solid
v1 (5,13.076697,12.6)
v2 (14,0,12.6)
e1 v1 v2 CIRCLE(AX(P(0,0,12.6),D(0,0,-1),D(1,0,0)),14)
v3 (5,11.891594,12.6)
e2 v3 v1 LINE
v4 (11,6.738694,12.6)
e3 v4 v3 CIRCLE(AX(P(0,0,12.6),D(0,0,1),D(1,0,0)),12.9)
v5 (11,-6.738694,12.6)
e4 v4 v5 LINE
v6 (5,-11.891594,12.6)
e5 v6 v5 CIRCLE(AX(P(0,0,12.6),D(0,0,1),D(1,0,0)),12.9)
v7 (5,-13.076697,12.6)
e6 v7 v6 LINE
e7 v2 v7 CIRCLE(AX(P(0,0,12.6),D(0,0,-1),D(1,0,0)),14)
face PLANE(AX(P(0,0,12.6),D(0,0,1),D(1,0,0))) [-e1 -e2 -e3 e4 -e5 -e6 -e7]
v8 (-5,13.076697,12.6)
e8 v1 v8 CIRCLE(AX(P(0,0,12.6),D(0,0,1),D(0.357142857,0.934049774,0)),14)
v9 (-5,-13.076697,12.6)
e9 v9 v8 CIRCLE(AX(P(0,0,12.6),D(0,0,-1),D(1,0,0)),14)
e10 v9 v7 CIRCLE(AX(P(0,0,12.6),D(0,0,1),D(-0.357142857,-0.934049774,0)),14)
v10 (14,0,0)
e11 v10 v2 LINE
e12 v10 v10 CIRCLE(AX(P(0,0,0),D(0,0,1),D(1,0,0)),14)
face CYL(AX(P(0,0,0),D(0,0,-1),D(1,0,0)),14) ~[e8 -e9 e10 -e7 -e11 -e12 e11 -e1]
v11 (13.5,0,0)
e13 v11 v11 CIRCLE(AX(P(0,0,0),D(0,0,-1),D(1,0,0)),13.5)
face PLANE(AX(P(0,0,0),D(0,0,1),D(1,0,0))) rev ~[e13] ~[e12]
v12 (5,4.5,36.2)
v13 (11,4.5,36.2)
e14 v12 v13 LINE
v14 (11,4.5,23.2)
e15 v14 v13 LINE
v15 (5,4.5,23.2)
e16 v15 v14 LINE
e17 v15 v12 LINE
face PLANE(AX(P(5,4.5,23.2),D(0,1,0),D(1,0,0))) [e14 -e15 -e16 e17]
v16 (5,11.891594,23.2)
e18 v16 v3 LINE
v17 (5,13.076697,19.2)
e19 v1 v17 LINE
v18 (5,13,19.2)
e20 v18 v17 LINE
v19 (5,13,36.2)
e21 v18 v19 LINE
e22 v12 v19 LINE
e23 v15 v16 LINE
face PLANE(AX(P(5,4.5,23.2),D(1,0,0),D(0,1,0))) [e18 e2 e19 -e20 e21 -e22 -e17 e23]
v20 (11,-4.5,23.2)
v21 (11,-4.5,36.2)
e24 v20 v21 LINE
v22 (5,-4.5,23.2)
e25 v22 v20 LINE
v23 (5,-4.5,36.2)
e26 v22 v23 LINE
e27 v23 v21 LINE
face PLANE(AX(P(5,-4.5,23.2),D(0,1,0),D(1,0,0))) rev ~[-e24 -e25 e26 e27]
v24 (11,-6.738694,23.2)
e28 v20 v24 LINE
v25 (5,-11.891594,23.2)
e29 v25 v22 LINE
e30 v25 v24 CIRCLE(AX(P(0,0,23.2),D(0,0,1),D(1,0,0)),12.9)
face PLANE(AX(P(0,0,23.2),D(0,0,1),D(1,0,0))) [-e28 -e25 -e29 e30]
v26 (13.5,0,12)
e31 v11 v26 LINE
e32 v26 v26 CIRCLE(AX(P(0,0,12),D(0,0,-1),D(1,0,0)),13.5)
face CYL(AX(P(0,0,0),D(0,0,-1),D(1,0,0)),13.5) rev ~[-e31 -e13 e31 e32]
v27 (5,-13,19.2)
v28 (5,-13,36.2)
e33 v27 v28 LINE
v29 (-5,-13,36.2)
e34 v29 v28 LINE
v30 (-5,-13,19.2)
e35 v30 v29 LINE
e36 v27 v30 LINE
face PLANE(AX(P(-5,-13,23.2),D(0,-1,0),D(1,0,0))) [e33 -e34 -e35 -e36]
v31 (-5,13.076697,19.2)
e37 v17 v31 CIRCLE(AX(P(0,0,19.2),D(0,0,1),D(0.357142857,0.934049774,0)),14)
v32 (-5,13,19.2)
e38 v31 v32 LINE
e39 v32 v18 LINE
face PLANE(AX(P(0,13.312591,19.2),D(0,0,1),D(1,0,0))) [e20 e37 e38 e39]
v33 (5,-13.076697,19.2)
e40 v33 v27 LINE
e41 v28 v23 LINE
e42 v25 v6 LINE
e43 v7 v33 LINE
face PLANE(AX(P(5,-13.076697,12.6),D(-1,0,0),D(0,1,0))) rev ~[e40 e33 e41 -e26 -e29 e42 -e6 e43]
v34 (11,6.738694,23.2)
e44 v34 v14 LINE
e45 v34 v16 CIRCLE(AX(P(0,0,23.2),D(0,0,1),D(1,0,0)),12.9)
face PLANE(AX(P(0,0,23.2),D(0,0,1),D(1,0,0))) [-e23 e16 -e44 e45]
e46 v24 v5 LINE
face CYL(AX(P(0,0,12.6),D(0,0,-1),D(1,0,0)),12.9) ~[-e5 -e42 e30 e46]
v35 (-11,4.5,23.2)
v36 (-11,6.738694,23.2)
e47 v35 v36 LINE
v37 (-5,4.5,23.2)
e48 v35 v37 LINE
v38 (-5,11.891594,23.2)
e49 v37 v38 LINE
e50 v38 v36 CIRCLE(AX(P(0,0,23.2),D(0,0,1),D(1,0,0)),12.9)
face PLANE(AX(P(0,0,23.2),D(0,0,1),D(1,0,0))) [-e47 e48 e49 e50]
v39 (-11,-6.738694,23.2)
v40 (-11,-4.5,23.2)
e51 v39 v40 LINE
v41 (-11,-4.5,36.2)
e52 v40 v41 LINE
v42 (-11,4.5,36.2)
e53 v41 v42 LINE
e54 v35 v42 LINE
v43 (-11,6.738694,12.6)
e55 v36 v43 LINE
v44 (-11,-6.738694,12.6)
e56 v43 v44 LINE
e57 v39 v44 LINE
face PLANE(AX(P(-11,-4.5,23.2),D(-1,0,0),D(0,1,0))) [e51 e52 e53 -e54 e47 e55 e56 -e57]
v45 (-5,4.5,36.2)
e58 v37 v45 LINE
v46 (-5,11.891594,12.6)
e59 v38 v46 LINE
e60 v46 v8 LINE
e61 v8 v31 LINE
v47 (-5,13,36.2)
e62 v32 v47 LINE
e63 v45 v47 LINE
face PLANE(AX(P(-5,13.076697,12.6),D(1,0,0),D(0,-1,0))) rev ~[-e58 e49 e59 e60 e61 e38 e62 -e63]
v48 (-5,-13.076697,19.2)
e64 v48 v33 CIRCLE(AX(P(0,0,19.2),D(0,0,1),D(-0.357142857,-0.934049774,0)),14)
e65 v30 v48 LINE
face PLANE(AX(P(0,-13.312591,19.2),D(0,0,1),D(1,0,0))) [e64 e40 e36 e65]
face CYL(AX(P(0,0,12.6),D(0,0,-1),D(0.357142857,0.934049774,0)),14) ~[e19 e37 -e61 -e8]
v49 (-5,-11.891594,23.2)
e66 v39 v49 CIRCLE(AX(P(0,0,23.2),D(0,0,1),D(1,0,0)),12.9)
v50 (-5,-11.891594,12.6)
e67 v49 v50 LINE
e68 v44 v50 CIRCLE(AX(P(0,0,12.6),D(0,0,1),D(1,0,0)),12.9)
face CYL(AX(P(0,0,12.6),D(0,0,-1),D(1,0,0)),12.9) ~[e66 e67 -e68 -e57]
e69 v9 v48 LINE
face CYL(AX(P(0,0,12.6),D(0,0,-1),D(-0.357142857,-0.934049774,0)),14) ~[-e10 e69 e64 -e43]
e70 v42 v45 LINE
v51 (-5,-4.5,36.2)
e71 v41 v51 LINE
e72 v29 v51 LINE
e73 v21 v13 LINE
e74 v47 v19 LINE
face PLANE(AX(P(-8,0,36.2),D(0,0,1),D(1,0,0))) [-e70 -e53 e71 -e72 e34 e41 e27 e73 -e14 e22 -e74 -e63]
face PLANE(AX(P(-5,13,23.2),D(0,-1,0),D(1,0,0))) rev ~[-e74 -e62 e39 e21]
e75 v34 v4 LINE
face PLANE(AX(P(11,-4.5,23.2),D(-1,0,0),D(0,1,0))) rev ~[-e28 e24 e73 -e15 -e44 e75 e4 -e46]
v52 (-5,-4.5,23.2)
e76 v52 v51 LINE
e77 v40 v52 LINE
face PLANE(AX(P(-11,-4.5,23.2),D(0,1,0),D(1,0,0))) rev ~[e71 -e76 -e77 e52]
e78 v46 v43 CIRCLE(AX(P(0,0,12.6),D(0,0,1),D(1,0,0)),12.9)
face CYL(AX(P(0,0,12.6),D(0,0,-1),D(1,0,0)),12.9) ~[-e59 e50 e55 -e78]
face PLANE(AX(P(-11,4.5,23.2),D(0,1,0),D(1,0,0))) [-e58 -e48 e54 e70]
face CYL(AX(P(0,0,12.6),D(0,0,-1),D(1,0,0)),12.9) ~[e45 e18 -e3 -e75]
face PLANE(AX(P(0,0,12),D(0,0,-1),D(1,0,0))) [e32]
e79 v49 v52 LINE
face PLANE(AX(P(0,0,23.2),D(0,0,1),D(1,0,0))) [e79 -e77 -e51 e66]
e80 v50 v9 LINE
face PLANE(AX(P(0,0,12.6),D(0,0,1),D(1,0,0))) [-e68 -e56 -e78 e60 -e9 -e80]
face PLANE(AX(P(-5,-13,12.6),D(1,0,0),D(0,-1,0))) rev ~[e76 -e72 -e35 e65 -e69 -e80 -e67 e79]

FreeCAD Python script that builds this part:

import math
import FreeCAD as App
import Part
import Sketcher

V = App.Vector


def add_polygon(sketch, points):
    """Adds a closed chain of lines whose ends are joined by coincident constraints."""
    first, n = sketch.GeometryCount, len(points)
    for a, b in zip(points, points[1:] + points[:1]):
        sketch.addGeometry(Part.LineSegment(App.Vector(*a, 0), App.Vector(*b, 0)), False)
    for i in range(n):
        sketch.addConstraint(Sketcher.Constraint("Coincident", first + i, 2, first + (i + 1) % n, 1))

doc = App.newDocument("Part")
body = doc.addObject("PartDesign::Body", "Body")

sketch1 = body.newObject("Sketcher::SketchObject", "Sketch")
sketch1.AttachmentSupport = (doc.getObject("XY_Plane"), [""])
sketch1.MapMode = "FlatFace"
sketch1.addGeometry(Part.Circle(V(0, 0, 0), V(0, 0, 1), 14), False)
sketch1.addConstraint(Sketcher.Constraint("Coincident", 0, 3, -1, 1))
sketch1.addConstraint(Sketcher.Constraint("Diameter", 0, 28.0))
pad1 = body.newObject("PartDesign::Pad", "Pad")
pad1.Profile = sketch1
pad1.Length = 12.6

sketch2 = body.newObject("Sketcher::SketchObject", "Sketch001")
sketch2.AttachmentSupport = (doc.getObject("XY_Plane"), [""])
sketch2.MapMode = "FlatFace"
sketch2.AttachmentOffset = App.Placement(V(0, 0, 12.6), App.Rotation())
sketch2.addGeometry(Part.Circle(V(0, 0, 0), V(0, 0, 1), 13), False)
sketch2.addConstraint(Sketcher.Constraint("Coincident", 0, 3, -1, 1))
sketch2.addConstraint(Sketcher.Constraint("Diameter", 0, 25.8))
pad2 = body.newObject("PartDesign::Pad", "Pad001")
pad2.Profile = sketch2
pad2.Length = 10.6

sketch3 = body.newObject("Sketcher::SketchObject", "Sketch002")
sketch3.AttachmentSupport = (doc.getObject("XY_Plane"), [""])
sketch3.MapMode = "FlatFace"
sketch3.AttachmentOffset = App.Placement(V(0, 0, 23.2), App.Rotation())
add_polygon(sketch3, [(19, 15), (11, 15), (11, -15), (19, -15)])
add_polygon(sketch3, [(-11, 14), (-21, 14), (-21, -14), (-11, -14)])
sketch3.addConstraint(Sketcher.Constraint("Horizontal", 0))
sketch3.addConstraint(Sketcher.Constraint("Vertical", 1))
sketch3.addConstraint(Sketcher.Constraint("Horizontal", 2))
sketch3.addConstraint(Sketcher.Constraint("Vertical", 3))
sketch3.addConstraint(Sketcher.Constraint("Horizontal", 4))
sketch3.addConstraint(Sketcher.Constraint("Vertical", 5))
sketch3.addConstraint(Sketcher.Constraint("Horizontal", 6))
sketch3.addConstraint(Sketcher.Constraint("Vertical", 7))
sketch3.addConstraint(Sketcher.Constraint("DistanceX", -1, 1, 0, 2, 11.0))
sketch3.addConstraint(Sketcher.Constraint("DistanceX", 6, 2, -1, 1, 11.0))
sketch3.addConstraint(Sketcher.Constraint("DistanceY", 5, 2, 5, 1, 27.82446))
sketch3.addConstraint(Sketcher.Constraint("DistanceX", 0, 2, 0, 1, 8.012233))
sketch3.addConstraint(Sketcher.Constraint("DistanceX", 4, 2, 4, 1, 9.838056))
sketch3.addConstraint(Sketcher.Constraint("DistanceY", 1, 2, 1, 1, 30.346222))
sketch3.addConstraint(Sketcher.Constraint("DistanceY", -1, 1, 0, 2, 15.173111))
sketch3.addConstraint(Sketcher.Constraint("DistanceY", -1, 1, 4, 2, 13.91223))
pocket1 = body.newObject("PartDesign::Pocket", "Pocket")
pocket1.Profile = sketch3
pocket1.Length = 10.6

sketch4 = body.newObject("Sketcher::SketchObject", "Sketch003")
sketch4.AttachmentSupport = (doc.getObject("XY_Plane"), [""])
sketch4.MapMode = "FlatFace"
sketch4.AttachmentOffset = App.Placement(V(0, 0, 23.2), App.Rotation())
add_polygon(sketch4, [(-11, 4), (-11, -4), (-5, -4), (-5, -13), (5, -13), (5, -4), (11, -4), (11, 4), (5, 4), (5, 13), (-5, 13), (-5, 4)])
sketch4.addConstraint(Sketcher.Constraint("Vertical", 0))
sketch4.addConstraint(Sketcher.Constraint("Horizontal", 1))
sketch4.addConstraint(Sketcher.Constraint("Vertical", 2))
sketch4.addConstraint(Sketcher.Constraint("Horizontal", 3))
sketch4.addConstraint(Sketcher.Constraint("Vertical", 4))
sketch4.addConstraint(Sketcher.Constraint("Horizontal", 5))
sketch4.addConstraint(Sketcher.Constraint("Vertical", 6))
sketch4.addConstraint(Sketcher.Constraint("Horizontal", 7))
sketch4.addConstraint(Sketcher.Constraint("Vertical", 8))
sketch4.addConstraint(Sketcher.Constraint("Horizontal", 9))
sketch4.addConstraint(Sketcher.Constraint("Vertical", 10))
sketch4.addConstraint(Sketcher.Constraint("Horizontal", 11))
sketch4.addConstraint(Sketcher.Constraint("Symmetric", 0, 2, 6, 2, -1, 1))
sketch4.addConstraint(Sketcher.Constraint("Symmetric", 2, 2, 8, 2, -1, 1))
sketch4.addConstraint(Sketcher.Constraint("Symmetric", 4, 2, 10, 2, -1, 1))
sketch4.addConstraint(Sketcher.Constraint("Symmetric", 1, 2, 4, 2, -2))
sketch4.addConstraint(Sketcher.Constraint("DistanceX", 1, 1, 1, 2, 6.0))
sketch4.addConstraint(Sketcher.Constraint("DistanceX", 3, 1, 3, 2, 10.0))
sketch4.addConstraint(Sketcher.Constraint("DistanceY", 0, 2, 0, 1, 9.0))
sketch4.addConstraint(Sketcher.Constraint("DistanceY", 2, 2, 2, 1, 8.5))
pad3 = body.newObject("PartDesign::Pad", "Pad002")
pad3.Profile = sketch4
pad3.Type = "TwoLengths"
pad3.Length = 13
pad3.Length2 = 12

sketch5 = body.newObject("Sketcher::SketchObject", "Sketch004")
sketch5.AttachmentSupport = (doc.getObject("XY_Plane"), [""])
sketch5.MapMode = "FlatFace"
sketch5.AttachmentOffset = App.Placement(V(0, 0, 12.6), App.Rotation())
sketch5.addGeometry(Part.LineSegment(V(5, -13, 0), V(-5, -13, 0)), False)
sketch5.addGeometry(Part.LineSegment(V(-5, -13, 0), V(-5, -13.08, 0)), False)
sketch5.addGeometry(Part.ArcOfCircle(Part.Circle(V(0, 0, 0), V(0, 0, 1), 14), math.radians(-111), math.radians(-69)), False)
sketch5.addGeometry(Part.LineSegment(V(5, -13.08, 0), V(5, -13, 0)), False)
sketch5.addGeometry(Part.ArcOfCircle(Part.Circle(V(0, 0, 0), V(0, 0, 1), 14), math.radians(69), math.radians(111)), False)
sketch5.addGeometry(Part.LineSegment(V(-5, 13.08, 0), V(-5, 13, 0)), False)
sketch5.addGeometry(Part.LineSegment(V(-5, 13, 0), V(5, 13, 0)), False)
sketch5.addGeometry(Part.LineSegment(V(5, 13, 0), V(5, 13.08, 0)), False)
sketch5.addConstraint(Sketcher.Constraint("Coincident", 0, 2, 1, 1))
sketch5.addConstraint(Sketcher.Constraint("Coincident", 1, 2, 2, 1))
sketch5.addConstraint(Sketcher.Constraint("Coincident", 2, 2, 3, 1))
sketch5.addConstraint(Sketcher.Constraint("Coincident", 3, 2, 0, 1))
sketch5.addConstraint(Sketcher.Constraint("Coincident", 4, 2, 5, 1))
sketch5.addConstraint(Sketcher.Constraint("Coincident", 5, 2, 6, 1))
sketch5.addConstraint(Sketcher.Constraint("Coincident", 6, 2, 7, 1))
sketch5.addConstraint(Sketcher.Constraint("Coincident", 7, 2, 4, 1))
sketch5.addConstraint(Sketcher.Constraint("Horizontal", 0))
sketch5.addConstraint(Sketcher.Constraint("Vertical", 1))
sketch5.addConstraint(Sketcher.Constraint("Vertical", 3))
sketch5.addConstraint(Sketcher.Constraint("Vertical", 5))
sketch5.addConstraint(Sketcher.Constraint("Horizontal", 6))
sketch5.addConstraint(Sketcher.Constraint("Vertical", 7))
sketch5.addConstraint(Sketcher.Constraint("Coincident", 2, 3, -1, 1))
sketch5.addConstraint(Sketcher.Constraint("Coincident", 4, 3, -1, 1))
sketch5.addConstraint(Sketcher.Constraint("Equal", 2, 4))
sketch5.addConstraint(Sketcher.Constraint("Symmetric", 3, 2, 5, 2, -1, 1))
sketch5.addConstraint(Sketcher.Constraint("Horizontal", 1, 2, 2, 2))
sketch5.addConstraint(Sketcher.Constraint("Horizontal", 4, 2, 7, 2))
sketch5.addConstraint(Sketcher.Constraint("Radius", 2, 14.0))
sketch5.addConstraint(Sketcher.Constraint("DistanceX", 0, 2, 0, 1, 10.0))
sketch5.addConstraint(Sketcher.Constraint("DistanceY", 0, 2, -1, 1, 13.0))
pad4 = body.newObject("PartDesign::Pad", "Pad003")
pad4.Profile = sketch5
pad4.Length = 6.6

sketch6 = body.newObject("Sketcher::SketchObject", "Sketch005")
sketch6.AttachmentSupport = (doc.getObject("XY_Plane"), [""])
sketch6.MapMode = "FlatFace"
sketch6.addGeometry(Part.Circle(V(0, 0, 0), V(0, 0, 1), 14), False)
sketch6.addConstraint(Sketcher.Constraint("Coincident", 0, 3, -1, 1))
sketch6.addConstraint(Sketcher.Constraint("Diameter", 0, 27.0))
pocket2 = body.newObject("PartDesign::Pocket", "Pocket001")
pocket2.Profile = sketch6
pocket2.Length = 12
pocket2.Reversed = True

doc.recompute()
